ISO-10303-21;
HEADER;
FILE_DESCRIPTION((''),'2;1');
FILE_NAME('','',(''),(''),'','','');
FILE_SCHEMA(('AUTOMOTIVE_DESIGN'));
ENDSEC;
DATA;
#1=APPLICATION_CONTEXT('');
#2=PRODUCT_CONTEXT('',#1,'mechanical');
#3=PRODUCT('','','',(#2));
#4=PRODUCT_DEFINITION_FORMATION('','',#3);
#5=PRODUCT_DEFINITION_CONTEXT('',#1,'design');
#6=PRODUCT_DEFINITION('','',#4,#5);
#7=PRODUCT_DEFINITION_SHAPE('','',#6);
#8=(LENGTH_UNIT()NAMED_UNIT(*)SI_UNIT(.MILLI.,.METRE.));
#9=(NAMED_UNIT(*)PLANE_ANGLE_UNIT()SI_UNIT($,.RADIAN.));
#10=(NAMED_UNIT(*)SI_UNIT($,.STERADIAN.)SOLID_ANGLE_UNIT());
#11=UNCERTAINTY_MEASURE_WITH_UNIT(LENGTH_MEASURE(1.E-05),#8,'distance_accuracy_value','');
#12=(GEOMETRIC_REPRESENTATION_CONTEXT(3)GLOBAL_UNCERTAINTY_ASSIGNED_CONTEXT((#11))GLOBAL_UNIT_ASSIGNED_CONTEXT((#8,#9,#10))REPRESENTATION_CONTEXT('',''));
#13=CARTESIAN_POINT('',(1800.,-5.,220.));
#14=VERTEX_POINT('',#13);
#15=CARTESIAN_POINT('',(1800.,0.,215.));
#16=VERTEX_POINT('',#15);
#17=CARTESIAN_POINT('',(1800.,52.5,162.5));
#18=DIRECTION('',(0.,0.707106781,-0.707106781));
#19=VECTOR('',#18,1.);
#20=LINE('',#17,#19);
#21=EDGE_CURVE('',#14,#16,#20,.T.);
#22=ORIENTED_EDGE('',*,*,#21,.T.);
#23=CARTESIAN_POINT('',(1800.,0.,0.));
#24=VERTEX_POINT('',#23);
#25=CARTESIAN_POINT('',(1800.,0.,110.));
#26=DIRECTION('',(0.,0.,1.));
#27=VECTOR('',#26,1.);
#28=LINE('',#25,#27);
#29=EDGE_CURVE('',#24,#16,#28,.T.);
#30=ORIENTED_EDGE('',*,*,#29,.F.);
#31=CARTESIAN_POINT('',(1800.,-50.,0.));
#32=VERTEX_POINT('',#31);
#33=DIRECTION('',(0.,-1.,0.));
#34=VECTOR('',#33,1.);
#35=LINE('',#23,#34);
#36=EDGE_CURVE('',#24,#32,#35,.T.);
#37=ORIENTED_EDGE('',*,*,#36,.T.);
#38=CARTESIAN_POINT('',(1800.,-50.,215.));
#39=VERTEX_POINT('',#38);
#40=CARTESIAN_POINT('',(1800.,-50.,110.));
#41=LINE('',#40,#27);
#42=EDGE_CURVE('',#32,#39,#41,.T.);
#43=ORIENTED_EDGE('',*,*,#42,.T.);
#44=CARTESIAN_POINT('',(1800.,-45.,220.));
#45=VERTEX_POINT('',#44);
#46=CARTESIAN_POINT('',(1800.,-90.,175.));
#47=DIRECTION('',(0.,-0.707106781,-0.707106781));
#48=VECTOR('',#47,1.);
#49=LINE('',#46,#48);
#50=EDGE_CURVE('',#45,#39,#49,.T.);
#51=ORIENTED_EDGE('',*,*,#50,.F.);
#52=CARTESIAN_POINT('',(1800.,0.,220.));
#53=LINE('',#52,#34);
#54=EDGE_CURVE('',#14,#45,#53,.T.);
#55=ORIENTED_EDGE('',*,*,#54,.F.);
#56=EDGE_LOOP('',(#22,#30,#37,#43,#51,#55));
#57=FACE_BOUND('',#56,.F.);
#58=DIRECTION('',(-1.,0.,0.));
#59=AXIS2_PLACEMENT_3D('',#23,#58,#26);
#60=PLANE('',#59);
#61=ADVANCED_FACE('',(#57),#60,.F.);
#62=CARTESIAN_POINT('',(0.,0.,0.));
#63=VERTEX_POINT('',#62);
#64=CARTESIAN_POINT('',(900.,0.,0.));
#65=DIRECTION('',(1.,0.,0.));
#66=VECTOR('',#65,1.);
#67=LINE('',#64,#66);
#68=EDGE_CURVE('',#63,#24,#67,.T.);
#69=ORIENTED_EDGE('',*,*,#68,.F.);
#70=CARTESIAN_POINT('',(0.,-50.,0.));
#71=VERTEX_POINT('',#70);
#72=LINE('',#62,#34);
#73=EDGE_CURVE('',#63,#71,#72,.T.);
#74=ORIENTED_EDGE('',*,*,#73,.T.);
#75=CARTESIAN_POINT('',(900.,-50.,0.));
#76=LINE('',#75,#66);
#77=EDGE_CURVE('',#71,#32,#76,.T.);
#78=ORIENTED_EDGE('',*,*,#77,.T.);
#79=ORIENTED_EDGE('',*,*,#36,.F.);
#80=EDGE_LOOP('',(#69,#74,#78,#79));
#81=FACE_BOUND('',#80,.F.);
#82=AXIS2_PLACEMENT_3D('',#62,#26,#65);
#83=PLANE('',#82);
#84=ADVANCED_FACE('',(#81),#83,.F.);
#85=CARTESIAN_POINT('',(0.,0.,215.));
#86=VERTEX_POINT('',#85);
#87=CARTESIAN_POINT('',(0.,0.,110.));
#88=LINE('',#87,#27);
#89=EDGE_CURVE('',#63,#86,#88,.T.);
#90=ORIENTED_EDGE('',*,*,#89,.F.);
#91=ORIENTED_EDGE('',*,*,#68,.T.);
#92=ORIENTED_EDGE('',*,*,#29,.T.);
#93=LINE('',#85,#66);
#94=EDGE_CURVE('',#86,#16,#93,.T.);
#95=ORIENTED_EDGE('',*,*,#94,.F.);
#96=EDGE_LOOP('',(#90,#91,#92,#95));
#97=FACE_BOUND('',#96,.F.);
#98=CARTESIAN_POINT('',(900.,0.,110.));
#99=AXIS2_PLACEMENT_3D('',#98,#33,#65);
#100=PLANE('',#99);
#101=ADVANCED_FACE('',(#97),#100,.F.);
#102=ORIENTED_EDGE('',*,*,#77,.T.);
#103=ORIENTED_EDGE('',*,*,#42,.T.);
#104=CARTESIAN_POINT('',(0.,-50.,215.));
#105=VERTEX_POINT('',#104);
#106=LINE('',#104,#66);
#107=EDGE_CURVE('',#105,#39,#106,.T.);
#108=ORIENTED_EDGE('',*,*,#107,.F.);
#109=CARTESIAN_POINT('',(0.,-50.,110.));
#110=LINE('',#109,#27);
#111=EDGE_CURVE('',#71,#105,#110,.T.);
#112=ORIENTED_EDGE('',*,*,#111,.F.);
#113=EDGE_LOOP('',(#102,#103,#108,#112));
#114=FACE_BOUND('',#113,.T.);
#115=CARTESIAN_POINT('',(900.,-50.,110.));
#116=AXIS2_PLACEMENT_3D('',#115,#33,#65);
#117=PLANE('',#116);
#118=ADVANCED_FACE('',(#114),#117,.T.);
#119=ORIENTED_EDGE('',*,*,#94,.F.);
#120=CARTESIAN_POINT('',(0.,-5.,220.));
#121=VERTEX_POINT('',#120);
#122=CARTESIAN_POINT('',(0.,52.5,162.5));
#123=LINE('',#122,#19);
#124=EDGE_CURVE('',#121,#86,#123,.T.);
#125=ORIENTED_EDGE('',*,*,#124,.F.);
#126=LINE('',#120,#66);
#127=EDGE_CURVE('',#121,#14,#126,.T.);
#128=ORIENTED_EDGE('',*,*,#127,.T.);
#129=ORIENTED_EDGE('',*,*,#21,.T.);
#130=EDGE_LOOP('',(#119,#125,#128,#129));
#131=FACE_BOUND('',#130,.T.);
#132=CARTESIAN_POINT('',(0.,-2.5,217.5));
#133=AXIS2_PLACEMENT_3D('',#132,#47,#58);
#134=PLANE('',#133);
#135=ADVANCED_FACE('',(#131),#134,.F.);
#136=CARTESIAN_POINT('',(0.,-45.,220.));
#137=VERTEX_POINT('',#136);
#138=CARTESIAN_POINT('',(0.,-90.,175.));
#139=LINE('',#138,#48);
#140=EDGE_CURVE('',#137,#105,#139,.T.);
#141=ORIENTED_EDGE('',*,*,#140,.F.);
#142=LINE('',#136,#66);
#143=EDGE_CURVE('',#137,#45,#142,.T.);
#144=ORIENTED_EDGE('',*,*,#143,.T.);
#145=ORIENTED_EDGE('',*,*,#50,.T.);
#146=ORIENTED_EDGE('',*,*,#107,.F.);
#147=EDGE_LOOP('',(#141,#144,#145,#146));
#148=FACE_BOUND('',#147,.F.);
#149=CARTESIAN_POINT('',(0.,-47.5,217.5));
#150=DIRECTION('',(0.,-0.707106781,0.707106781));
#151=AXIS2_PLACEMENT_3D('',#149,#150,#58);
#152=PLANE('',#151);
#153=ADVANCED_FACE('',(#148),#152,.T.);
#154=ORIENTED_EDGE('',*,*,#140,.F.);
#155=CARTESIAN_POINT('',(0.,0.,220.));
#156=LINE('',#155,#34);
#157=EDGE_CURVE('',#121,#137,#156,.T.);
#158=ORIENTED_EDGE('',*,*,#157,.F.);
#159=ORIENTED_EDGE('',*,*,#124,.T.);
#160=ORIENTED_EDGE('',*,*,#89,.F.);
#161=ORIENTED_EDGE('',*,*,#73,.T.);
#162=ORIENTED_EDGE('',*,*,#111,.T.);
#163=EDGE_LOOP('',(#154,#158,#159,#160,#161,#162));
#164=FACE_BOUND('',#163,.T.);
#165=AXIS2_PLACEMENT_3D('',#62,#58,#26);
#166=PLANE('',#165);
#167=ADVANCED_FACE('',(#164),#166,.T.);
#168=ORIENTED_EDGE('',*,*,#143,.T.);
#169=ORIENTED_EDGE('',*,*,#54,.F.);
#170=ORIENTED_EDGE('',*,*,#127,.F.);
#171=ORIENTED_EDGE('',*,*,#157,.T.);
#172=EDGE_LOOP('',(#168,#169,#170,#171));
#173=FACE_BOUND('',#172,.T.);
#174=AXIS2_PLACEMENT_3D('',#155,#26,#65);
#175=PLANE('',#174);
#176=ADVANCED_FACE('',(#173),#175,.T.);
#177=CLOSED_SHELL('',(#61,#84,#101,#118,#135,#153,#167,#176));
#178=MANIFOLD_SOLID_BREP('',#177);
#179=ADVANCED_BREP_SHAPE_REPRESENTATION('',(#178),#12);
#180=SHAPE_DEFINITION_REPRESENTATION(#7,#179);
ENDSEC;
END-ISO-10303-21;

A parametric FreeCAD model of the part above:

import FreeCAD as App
import Part
import Sketcher

V = App.Vector


def edges_at(feature, points):
    """Names of the edges that pass closest to the given points."""
    edges = feature.Shape.Edges
    near = lambda p: min(range(len(edges)), key=lambda i: edges[i].distToShape(Part.Vertex(*p))[0])
    return sorted({f"Edge{near(p) + 1}" for p in points})


def add_polygon(sketch, points):
    """Adds a closed chain of lines whose ends are joined by coincident constraints."""
    first, n = sketch.GeometryCount, len(points)
    for a, b in zip(points, points[1:] + points[:1]):
        sketch.addGeometry(Part.LineSegment(App.Vector(*a, 0), App.Vector(*b, 0)), False)
    for i in range(n):
        sketch.addConstraint(Sketcher.Constraint("Coincident", first + i, 2, first + (i + 1) % n, 1))

doc = App.newDocument("Part")
body = doc.addObject("PartDesign::Body", "Body")

# Sketch on XZ plane
sketch1 = body.newObject("Sketcher::SketchObject", "Sketch")
sketch1.AttachmentSupport = (doc.getObject("XZ_Plane"), [""])
sketch1.MapMode = "FlatFace"
add_polygon(sketch1, [(0, 220), (0, 0), (1800, 0), (1800, 220)])  # lines 0-3
sketch1.addConstraint([
    Sketcher.Constraint("Vertical", 0),
    Sketcher.Constraint("Horizontal", 1),
    Sketcher.Constraint("Vertical", 2),
    Sketcher.Constraint("Horizontal", 3),
    Sketcher.Constraint("Coincident", 0, 2, -1, 1),
    Sketcher.Constraint("DistanceX", 1, 1, 1, 2, 1800.0),
    Sketcher.Constraint("DistanceY", 0, 2, 0, 1, 220.0),
])
pad1 = body.newObject("PartDesign::Pad", "Pad")
pad1.Profile = sketch1
pad1.Length = 50
doc.recompute()

chamfer = body.newObject("PartDesign::Chamfer", "Chamfer")
chamfer.Base = (pad1, edges_at(pad1, [(900, -50, 220), (900, 0, 220)]))
chamfer.Size = 5

doc.recompute()
